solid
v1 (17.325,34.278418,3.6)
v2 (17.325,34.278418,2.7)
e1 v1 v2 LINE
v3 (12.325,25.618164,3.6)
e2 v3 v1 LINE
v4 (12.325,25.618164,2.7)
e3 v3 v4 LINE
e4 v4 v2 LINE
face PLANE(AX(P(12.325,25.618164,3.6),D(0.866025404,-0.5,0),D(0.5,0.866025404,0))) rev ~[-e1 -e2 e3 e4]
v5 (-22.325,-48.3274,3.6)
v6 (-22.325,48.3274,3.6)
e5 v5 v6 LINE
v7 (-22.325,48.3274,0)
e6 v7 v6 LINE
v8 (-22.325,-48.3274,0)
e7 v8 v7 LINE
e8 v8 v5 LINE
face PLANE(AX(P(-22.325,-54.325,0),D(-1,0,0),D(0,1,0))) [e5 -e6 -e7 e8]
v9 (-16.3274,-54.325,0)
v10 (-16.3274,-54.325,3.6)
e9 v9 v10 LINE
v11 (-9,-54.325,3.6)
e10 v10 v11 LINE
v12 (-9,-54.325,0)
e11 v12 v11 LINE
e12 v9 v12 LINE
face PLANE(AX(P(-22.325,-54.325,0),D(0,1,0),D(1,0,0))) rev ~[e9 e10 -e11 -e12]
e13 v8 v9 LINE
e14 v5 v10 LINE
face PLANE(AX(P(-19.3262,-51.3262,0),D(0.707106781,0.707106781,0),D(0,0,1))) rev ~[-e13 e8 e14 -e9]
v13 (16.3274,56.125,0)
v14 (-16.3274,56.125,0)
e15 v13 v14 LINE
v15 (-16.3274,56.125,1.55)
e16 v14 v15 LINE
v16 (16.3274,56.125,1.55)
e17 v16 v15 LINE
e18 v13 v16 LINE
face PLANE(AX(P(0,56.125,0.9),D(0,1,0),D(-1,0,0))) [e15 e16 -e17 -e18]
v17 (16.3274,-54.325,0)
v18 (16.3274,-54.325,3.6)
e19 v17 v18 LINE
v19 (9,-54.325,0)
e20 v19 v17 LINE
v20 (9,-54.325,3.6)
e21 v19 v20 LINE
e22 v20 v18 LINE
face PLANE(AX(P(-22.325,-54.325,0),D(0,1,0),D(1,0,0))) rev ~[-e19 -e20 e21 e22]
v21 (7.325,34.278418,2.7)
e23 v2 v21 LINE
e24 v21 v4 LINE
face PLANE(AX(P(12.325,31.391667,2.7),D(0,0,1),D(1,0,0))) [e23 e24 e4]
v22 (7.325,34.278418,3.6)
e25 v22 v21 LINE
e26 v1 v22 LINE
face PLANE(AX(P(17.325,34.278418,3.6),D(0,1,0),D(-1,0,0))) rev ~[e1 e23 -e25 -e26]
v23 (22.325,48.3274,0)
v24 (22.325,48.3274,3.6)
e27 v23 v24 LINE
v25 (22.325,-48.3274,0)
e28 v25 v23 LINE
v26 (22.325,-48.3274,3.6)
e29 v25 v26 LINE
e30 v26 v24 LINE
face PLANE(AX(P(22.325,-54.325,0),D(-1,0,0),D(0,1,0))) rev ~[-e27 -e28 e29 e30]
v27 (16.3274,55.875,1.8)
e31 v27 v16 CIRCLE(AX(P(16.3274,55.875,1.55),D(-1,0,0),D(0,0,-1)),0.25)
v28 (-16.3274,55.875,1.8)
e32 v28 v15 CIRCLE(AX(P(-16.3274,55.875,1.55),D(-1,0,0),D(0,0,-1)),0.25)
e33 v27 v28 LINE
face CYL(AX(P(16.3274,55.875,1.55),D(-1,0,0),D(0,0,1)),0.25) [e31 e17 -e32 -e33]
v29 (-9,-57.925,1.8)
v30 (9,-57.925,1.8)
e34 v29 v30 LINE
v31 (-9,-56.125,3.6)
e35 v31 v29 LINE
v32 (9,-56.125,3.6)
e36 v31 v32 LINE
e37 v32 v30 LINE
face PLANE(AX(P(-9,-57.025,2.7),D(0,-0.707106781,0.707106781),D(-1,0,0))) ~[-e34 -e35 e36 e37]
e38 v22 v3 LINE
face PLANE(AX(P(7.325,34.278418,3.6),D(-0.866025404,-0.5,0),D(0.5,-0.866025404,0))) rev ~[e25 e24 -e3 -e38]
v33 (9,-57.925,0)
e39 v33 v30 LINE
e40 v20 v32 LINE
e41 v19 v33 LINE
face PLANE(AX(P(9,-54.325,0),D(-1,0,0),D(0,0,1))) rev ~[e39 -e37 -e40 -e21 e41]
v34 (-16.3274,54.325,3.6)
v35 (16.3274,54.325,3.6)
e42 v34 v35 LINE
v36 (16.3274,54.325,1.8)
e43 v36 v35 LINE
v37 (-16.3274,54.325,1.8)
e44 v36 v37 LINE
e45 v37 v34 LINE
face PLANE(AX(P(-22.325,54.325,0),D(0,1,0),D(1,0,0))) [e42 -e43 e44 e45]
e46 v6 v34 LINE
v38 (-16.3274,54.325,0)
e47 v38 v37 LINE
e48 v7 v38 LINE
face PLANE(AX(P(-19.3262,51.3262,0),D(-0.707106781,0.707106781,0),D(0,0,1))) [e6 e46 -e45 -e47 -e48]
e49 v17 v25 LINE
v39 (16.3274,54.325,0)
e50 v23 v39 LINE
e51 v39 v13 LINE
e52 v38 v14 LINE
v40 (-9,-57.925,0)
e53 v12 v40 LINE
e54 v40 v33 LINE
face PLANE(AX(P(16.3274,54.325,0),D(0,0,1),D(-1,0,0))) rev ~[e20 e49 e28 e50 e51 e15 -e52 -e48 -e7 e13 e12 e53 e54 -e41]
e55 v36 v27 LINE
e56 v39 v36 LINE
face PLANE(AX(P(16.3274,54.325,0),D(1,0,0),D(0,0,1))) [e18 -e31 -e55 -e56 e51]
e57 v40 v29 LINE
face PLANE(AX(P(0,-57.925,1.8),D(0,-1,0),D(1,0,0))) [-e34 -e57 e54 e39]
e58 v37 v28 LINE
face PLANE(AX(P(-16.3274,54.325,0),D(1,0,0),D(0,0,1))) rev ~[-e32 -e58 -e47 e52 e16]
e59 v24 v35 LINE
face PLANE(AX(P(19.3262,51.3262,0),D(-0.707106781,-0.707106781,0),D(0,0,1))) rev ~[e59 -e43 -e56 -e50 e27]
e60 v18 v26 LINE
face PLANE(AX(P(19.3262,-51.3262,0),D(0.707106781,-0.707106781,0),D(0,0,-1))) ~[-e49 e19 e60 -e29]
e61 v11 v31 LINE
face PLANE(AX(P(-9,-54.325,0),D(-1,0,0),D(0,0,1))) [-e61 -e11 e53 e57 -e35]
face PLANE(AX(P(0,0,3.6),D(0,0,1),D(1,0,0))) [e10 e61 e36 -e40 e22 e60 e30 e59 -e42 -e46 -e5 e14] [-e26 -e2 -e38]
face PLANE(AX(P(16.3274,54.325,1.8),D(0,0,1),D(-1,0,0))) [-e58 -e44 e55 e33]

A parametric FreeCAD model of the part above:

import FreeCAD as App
import Part
import Sketcher
Q = App.Units.Quantity


def edges_at(feature, points):
    """Names of the edges that pass closest to the given points."""
    edges = feature.Shape.Edges
    near = lambda p: min(range(len(edges)), key=lambda i: edges[i].distToShape(Part.Vertex(*p))[0])
    return sorted({f"Edge{near(p) + 1}" for p in points})


def add_polygon(sketch, points):
    """Adds a closed chain of lines whose ends are joined by coincident constraints."""
    first, n = sketch.GeometryCount, len(points)
    for a, b in zip(points, points[1:] + points[:1]):
        sketch.addGeometry(Part.LineSegment(App.Vector(*a, 0), App.Vector(*b, 0)), False)
    for i in range(n):
        sketch.addConstraint(Sketcher.Constraint("Coincident", first + i, 2, first + (i + 1) % n, 1))

doc = App.newDocument("Part")
body = doc.addObject("PartDesign::Body", "Body")

# Sketch on XY plane
sketch1 = body.newObject("Sketcher::SketchObject", "Sketch")
sketch1.AttachmentSupport = (doc.getObject("XY_Plane"), [""])
sketch1.MapMode = "FlatFace"
add_polygon(sketch1, [(-22.325, 54.325), (-22.325, -54.325), (22.325, -54.325), (22.325, 54.325)])  # lines 0-3
sketch1.addConstraint([
    Sketcher.Constraint("Vertical", 0),
    Sketcher.Constraint("Horizontal", 1),
    Sketcher.Constraint("Vertical", 2),
    Sketcher.Constraint("Horizontal", 3),
    Sketcher.Constraint("Symmetric", 0, 2, 2, 2, -1, 1),
    Sketcher.Constraint("DistanceX", 1, 1, 1, 2, 44.65),
    Sketcher.Constraint("DistanceY", 0, 2, 0, 1, 108.65),
])
pad1 = body.newObject("PartDesign::Pad", "Pad")
pad1.Profile = sketch1
pad1.Length = 3.6
doc.recompute()

chamfer = body.newObject("PartDesign::Chamfer", "Chamfer")
chamfer.Base = (pad1, edges_at(pad1, [
    (22.325, -54.325, 1.8),
    (-22.325, -54.325, 1.8),
    (-22.325, 54.325, 1.8),
    (22.325, 54.325, 1.8),
]))
chamfer.Size = 5.9976

# Sketch on XZ plane
sketch2 = body.newObject("Sketcher::SketchObject", "Sketch001")
sketch2.AttachmentSupport = (doc.getObject("XZ_Plane"), [""])
sketch2.MapMode = "FlatFace"
sketch2.AttachmentOffset = App.Placement(App.Vector(0, 0, -54.325), App.Rotation())
add_polygon(sketch2, [(16.3274, 1.8), (16.3274, 0), (-16.3274, 0), (-16.3274, 1.8)])  # lines 0-3
sketch2.addConstraint([
    Sketcher.Constraint("Vertical", 0),
    Sketcher.Constraint("Horizontal", 1),
    Sketcher.Constraint("Vertical", 2),
    Sketcher.Constraint("Horizontal", 3),
    Sketcher.Constraint("Symmetric", 0, 2, 1, 2, -1, 1),
    Sketcher.Constraint("DistanceY", 0, 2, 0, 1, 1.8),
    Sketcher.Constraint("DistanceX", 1, 2, 1, 1, 32.6548),
])
pad2 = body.newObject("PartDesign::Pad", "Pad001")
pad2.Profile = sketch2
pad2.Length = 1.8
pad2.Reversed = True
doc.recompute()

fillet = body.newObject("PartDesign::Fillet", "Fillet")
fillet.Base = (pad2, edges_at(pad2, [(0, 56.125, 1.8)]))
fillet.Radius = 0.25

# Sketch on XZ plane
sketch3 = body.newObject("Sketcher::SketchObject", "Sketch002")
sketch3.AttachmentSupport = (doc.getObject("XZ_Plane"), [""])
sketch3.MapMode = "FlatFace"
sketch3.AttachmentOffset = App.Placement(App.Vector(0, 0, 54.325), App.Rotation())
add_polygon(sketch3, [(-9, 3.6), (-9, 0), (9, 0), (9, 3.6)])  # lines 0-3
sketch3.addConstraint([
    Sketcher.Constraint("Vertical", 0),
    Sketcher.Constraint("Horizontal", 1),
    Sketcher.Constraint("Vertical", 2),
    Sketcher.Constraint("Horizontal", 3),
    Sketcher.Constraint("Symmetric", 0, 2, 1, 2, -1, 1),
    Sketcher.Constraint("DistanceX", 1, 1, 1, 2, 18.0),
    Sketcher.Constraint("DistanceY", 0, 2, 0, 1, 3.6),
])
pad3 = body.newObject("PartDesign::Pad", "Pad002")
pad3.Profile = sketch3
pad3.Length = 3.6
doc.recompute()

chamfer2 = body.newObject("PartDesign::Chamfer", "Chamfer001")
chamfer2.Base = (pad3, edges_at(pad3, [(0, -57.925, 3.6)]))
chamfer2.Size = 1.8

# Sketch on XY plane
sketch4 = body.newObject("Sketcher::SketchObject", "Sketch003")
sketch4.AttachmentSupport = (doc.getObject("XY_Plane"), [""])
sketch4.MapMode = "FlatFace"
sketch4.AttachmentOffset = App.Placement(App.Vector(0, 0, 3.6), App.Rotation())
add_polygon(sketch4, [(17.325, 34.278418), (7.325, 34.278418), (12.325, 25.618164)])  # lines 0-2
sketch4.addConstraint([
    Sketcher.Constraint("Horizontal", 0),
    Sketcher.Constraint("Equal", 1, 2),
    Sketcher.Constraint("DistanceX", 0, 2, 0, 1, 10.0),
    Sketcher.Constraint("Angle", 1, Q("-60 deg")),
    Sketcher.Constraint("DistanceX", -1, 1, 0, 2, 7.325),
    Sketcher.Constraint("DistanceY", -1, 1, 0, 2, 34.278418),
])
pocket1 = body.newObject("PartDesign::Pocket", "Pocket")
pocket1.Profile = sketch4
pocket1.Length = 0.9

doc.recompute()
